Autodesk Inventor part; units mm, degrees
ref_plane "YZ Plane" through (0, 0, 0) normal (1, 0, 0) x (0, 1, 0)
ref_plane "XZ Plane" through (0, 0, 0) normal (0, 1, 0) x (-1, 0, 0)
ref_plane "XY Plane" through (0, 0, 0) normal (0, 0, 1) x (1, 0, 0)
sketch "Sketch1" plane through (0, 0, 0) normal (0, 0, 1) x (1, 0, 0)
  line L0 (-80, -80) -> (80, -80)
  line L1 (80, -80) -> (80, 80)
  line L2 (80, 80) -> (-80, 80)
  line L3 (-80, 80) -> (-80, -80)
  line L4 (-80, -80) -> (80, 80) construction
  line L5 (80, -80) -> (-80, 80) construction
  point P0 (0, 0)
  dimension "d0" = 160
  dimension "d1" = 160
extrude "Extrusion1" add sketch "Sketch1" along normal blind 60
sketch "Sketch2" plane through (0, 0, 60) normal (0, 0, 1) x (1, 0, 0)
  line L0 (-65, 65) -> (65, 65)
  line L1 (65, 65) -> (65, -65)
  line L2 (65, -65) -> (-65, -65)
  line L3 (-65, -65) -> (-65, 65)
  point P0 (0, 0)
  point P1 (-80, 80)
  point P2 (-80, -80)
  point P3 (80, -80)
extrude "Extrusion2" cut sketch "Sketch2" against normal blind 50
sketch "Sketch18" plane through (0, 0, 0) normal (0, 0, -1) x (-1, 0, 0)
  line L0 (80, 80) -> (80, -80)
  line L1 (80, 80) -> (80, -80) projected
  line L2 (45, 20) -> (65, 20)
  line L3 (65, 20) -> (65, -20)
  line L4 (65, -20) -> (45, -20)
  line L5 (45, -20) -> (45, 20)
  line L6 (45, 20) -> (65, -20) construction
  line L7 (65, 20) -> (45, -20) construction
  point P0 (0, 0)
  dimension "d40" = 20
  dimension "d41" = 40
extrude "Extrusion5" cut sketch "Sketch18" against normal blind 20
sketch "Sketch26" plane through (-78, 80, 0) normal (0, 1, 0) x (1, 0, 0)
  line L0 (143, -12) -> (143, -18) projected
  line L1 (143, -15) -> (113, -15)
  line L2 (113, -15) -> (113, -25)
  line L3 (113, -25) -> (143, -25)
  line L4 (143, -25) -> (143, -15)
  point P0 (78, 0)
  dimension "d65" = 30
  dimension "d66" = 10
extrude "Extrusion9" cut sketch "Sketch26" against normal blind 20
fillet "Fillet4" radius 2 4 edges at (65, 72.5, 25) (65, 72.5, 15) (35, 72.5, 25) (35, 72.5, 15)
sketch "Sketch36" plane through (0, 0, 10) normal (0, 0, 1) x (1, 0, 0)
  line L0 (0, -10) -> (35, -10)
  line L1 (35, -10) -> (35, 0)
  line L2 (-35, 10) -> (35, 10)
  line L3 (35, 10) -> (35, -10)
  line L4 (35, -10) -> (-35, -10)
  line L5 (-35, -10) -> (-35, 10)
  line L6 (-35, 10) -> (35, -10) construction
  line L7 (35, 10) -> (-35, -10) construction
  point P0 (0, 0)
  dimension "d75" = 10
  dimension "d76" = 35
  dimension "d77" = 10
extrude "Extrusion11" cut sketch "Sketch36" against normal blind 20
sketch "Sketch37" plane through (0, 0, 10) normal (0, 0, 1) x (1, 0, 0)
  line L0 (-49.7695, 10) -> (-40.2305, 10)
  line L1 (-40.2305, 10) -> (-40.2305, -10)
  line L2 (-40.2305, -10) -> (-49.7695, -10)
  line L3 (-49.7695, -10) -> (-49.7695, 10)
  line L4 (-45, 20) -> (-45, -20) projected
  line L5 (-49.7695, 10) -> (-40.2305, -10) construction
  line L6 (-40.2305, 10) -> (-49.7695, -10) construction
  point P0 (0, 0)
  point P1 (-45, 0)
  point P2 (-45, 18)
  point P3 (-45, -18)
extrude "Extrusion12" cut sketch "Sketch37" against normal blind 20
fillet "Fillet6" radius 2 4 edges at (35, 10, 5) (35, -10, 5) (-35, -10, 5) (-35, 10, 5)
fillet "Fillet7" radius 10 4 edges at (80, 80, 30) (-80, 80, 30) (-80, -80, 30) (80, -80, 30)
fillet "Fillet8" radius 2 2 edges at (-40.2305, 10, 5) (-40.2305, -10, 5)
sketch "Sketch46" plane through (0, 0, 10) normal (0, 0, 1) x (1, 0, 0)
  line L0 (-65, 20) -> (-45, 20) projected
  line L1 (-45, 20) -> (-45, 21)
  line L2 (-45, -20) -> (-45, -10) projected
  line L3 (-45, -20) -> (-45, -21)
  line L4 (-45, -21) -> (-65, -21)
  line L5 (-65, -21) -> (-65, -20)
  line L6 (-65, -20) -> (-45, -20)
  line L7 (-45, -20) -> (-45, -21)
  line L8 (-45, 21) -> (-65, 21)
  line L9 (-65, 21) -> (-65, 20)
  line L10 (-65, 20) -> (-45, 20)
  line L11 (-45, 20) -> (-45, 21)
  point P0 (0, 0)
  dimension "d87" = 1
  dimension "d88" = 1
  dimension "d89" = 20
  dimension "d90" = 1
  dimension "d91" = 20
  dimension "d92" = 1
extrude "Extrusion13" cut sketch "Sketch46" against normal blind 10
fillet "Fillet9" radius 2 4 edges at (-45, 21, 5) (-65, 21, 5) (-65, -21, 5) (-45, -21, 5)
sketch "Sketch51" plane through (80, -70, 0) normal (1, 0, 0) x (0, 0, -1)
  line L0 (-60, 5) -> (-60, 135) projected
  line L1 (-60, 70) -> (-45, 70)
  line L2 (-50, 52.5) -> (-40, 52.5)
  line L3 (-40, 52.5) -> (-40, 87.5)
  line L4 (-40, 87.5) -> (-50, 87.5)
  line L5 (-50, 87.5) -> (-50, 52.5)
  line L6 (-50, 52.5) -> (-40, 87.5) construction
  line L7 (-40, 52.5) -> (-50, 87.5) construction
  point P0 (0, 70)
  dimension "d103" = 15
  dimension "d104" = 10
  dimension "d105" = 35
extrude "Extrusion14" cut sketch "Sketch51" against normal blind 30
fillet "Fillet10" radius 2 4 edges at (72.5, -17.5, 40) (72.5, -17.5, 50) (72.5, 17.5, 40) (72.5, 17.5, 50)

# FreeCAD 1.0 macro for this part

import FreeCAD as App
import Part
import Sketcher

V = App.Vector


def edges_at(feature, points):
    """Names of the edges that pass closest to the given points."""
    edges = feature.Shape.Edges
    near = lambda p: min(range(len(edges)), key=lambda i: edges[i].distToShape(Part.Vertex(*p))[0])
    return sorted({f"Edge{near(p) + 1}" for p in points})

doc = App.newDocument("Part")
body = doc.addObject("PartDesign::Body", "Body")

sketch1 = doc.addObject("Sketcher::SketchObject", "Sketch")
body.addObject(sketch1)
sketch1.AttachmentSupport = (doc.XY_Plane, [""])
sketch1.MapMode = "FlatFace"
sketch1.addGeometry(Part.LineSegment(V(-80, 80, 0), V(-80, -80, 0)), False)
sketch1.addGeometry(Part.LineSegment(V(-80, -80, 0), V(80, -80, 0)), False)
sketch1.addGeometry(Part.LineSegment(V(80, -80, 0), V(80, 80, 0)), False)
sketch1.addGeometry(Part.LineSegment(V(80, 80, 0), V(-80, 80, 0)), False)
sketch1.addConstraint(Sketcher.Constraint("Coincident", 0, 2, 1, 1))
sketch1.addConstraint(Sketcher.Constraint("Coincident", 1, 2, 2, 1))
sketch1.addConstraint(Sketcher.Constraint("Coincident", 2, 2, 3, 1))
sketch1.addConstraint(Sketcher.Constraint("Coincident", 3, 2, 0, 1))
sketch1.addConstraint(Sketcher.Constraint("Vertical", 0))
sketch1.addConstraint(Sketcher.Constraint("Horizontal", 1))
sketch1.addConstraint(Sketcher.Constraint("Vertical", 2))
sketch1.addConstraint(Sketcher.Constraint("Horizontal", 3))
sketch1.addConstraint(Sketcher.Constraint("Symmetric", 0, 2, 2, 2, -1, 1))
sketch1.addConstraint(Sketcher.Constraint("Equal", 3, 0))
sketch1.addConstraint(Sketcher.Constraint("DistanceX", 1, 1, 1, 2, 160.0))
pad1 = doc.addObject("PartDesign::Pad", "Pad")
body.addObject(pad1)
pad1.Profile = sketch1
pad1.Length = 60

sketch2 = doc.addObject("Sketcher::SketchObject", "Sketch001")
body.addObject(sketch2)
sketch2.AttachmentSupport = (doc.XY_Plane, [""])
sketch2.MapMode = "FlatFace"
sketch2.AttachmentOffset = App.Placement(V(0, 0, 60), App.Rotation())
sketch2.addGeometry(Part.LineSegment(V(65, 65, 0), V(-65, 65, 0)), False)
sketch2.addGeometry(Part.LineSegment(V(-65, 65, 0), V(-65, -65, 0)), False)
sketch2.addGeometry(Part.LineSegment(V(-65, -65, 0), V(65, -65, 0)), False)
sketch2.addGeometry(Part.LineSegment(V(65, -65, 0), V(65, 65, 0)), False)
sketch2.addConstraint(Sketcher.Constraint("Coincident", 0, 2, 1, 1))
sketch2.addConstraint(Sketcher.Constraint("Coincident", 1, 2, 2, 1))
sketch2.addConstraint(Sketcher.Constraint("Coincident", 2, 2, 3, 1))
sketch2.addConstraint(Sketcher.Constraint("Coincident", 3, 2, 0, 1))
sketch2.addConstraint(Sketcher.Constraint("Horizontal", 0))
sketch2.addConstraint(Sketcher.Constraint("Vertical", 1))
sketch2.addConstraint(Sketcher.Constraint("Horizontal", 2))
sketch2.addConstraint(Sketcher.Constraint("Vertical", 3))
sketch2.addConstraint(Sketcher.Constraint("Symmetric", 0, 2, 2, 2, -1, 1))
sketch2.addConstraint(Sketcher.Constraint("Equal", 2, 1))
sketch2.addConstraint(Sketcher.Constraint("DistanceX", 0, 2, 0, 1, 130.0))
pocket1 = doc.addObject("PartDesign::Pocket", "Pocket")
body.addObject(pocket1)
pocket1.Profile = sketch2
pocket1.Length = 50

sketch3 = doc.addObject("Sketcher::SketchObject", "Sketch002")
body.addObject(sketch3)
sketch3.AttachmentSupport = (doc.XY_Plane, [""])
sketch3.MapMode = "FlatFace"
sketch3.addGeometry(Part.LineSegment(V(-65, 20, 0), V(-45, 20, 0)), False)
sketch3.addGeometry(Part.LineSegment(V(-45, 20, 0), V(-45, -20, 0)), False)
sketch3.addGeometry(Part.LineSegment(V(-45, -20, 0), V(-65, -20, 0)), False)
sketch3.addGeometry(Part.LineSegment(V(-65, -20, 0), V(-65, 20, 0)), False)
sketch3.addConstraint(Sketcher.Constraint("Coincident", 0, 2, 1, 1))
sketch3.addConstraint(Sketcher.Constraint("Coincident", 1, 2, 2, 1))
sketch3.addConstraint(Sketcher.Constraint("Coincident", 2, 2, 3, 1))
sketch3.addConstraint(Sketcher.Constraint("Coincident", 3, 2, 0, 1))
sketch3.addConstraint(Sketcher.Constraint("Horizontal", 0))
sketch3.addConstraint(Sketcher.Constraint("Vertical", 1))
sketch3.addConstraint(Sketcher.Constraint("Horizontal", 2))
sketch3.addConstraint(Sketcher.Constraint("Vertical", 3))
sketch3.addConstraint(Sketcher.Constraint("DistanceX", 0, 1, 0, 2, 20.0))
sketch3.addConstraint(Sketcher.Constraint("DistanceY", 1, 2, 1, 1, 40.0))
sketch3.addConstraint(Sketcher.Constraint("DistanceY", -1, 1, 0, 2, 20.0))
sketch3.addConstraint(Sketcher.Constraint("DistanceX", 0, 2, -1, 1, 45.0))
pocket2 = doc.addObject("PartDesign::Pocket", "Pocket001")
body.addObject(pocket2)
pocket2.Profile = sketch3
pocket2.Length = 20
pocket2.Reversed = True

sketch4 = doc.addObject("Sketcher::SketchObject", "Sketch003")
body.addObject(sketch4)
sketch4.AttachmentSupport = (doc.XZ_Plane, [""])
sketch4.MapMode = "FlatFace"
sketch4.AttachmentOffset = App.Placement(V(0, 0, -80), App.Rotation())
sketch4.addGeometry(Part.LineSegment(V(65, 25, 0), V(65, 15, 0)), False)
sketch4.addGeometry(Part.LineSegment(V(65, 15, 0), V(35, 15, 0)), False)
sketch4.addGeometry(Part.LineSegment(V(35, 15, 0), V(35, 25, 0)), False)
sketch4.addGeometry(Part.LineSegment(V(35, 25, 0), V(65, 25, 0)), False)
sketch4.addConstraint(Sketcher.Constraint("Coincident", 0, 2, 1, 1))
sketch4.addConstraint(Sketcher.Constraint("Coincident", 1, 2, 2, 1))
sketch4.addConstraint(Sketcher.Constraint("Coincident", 2, 2, 3, 1))
sketch4.addConstraint(Sketcher.Constraint("Coincident", 3, 2, 0, 1))
sketch4.addConstraint(Sketcher.Constraint("Vertical", 0))
sketch4.addConstraint(Sketcher.Constraint("Horizontal", 1))
sketch4.addConstraint(Sketcher.Constraint("Vertical", 2))
sketch4.addConstraint(Sketcher.Constraint("Horizontal", 3))
sketch4.addConstraint(Sketcher.Constraint("DistanceX", 1, 2, 1, 1, 30.0))
sketch4.addConstraint(Sketcher.Constraint("DistanceY", 0, 2, 0, 1, 10.0))
sketch4.addConstraint(Sketcher.Constraint("DistanceX", -1, 1, 0, 2, 65.0))
sketch4.addConstraint(Sketcher.Constraint("DistanceY", -1, 1, 0, 2, 15.0))
pocket3 = doc.addObject("PartDesign::Pocket", "Pocket002")
body.addObject(pocket3)
pocket3.Profile = sketch4
pocket3.Length = 20
pocket3.Reversed = True
doc.recompute()

fillet = doc.addObject("PartDesign::Fillet", "Fillet")
body.addObject(fillet)
fillet.Base = (pocket3, edges_at(pocket3, [
    (65, 72.5, 25),
    (65, 72.5, 15),
    (35, 72.5, 25),
    (35, 72.5, 15),
]))
fillet.Radius = 2

sketch5 = doc.addObject("Sketcher::SketchObject", "Sketch004")
body.addObject(sketch5)
sketch5.AttachmentSupport = (doc.XY_Plane, [""])
sketch5.MapMode = "FlatFace"
sketch5.AttachmentOffset = App.Placement(V(0, 0, 10), App.Rotation())
sketch5.addGeometry(Part.LineSegment(V(-35, -10, 0), V(35, -10, 0)), False)
sketch5.addGeometry(Part.LineSegment(V(35, -10, 0), V(35, 10, 0)), False)
sketch5.addGeometry(Part.LineSegment(V(35, 10, 0), V(-35, 10, 0)), False)
sketch5.addGeometry(Part.LineSegment(V(-35, 10, 0), V(-35, -10, 0)), False)
sketch5.addConstraint(Sketcher.Constraint("Coincident", 0, 2, 1, 1))
sketch5.addConstraint(Sketcher.Constraint("Coincident", 1, 2, 2, 1))
sketch5.addConstraint(Sketcher.Constraint("Coincident", 2, 2, 3, 1))
sketch5.addConstraint(Sketcher.Constraint("Coincident", 3, 2, 0, 1))
sketch5.addConstraint(Sketcher.Constraint("Horizontal", 0))
sketch5.addConstraint(Sketcher.Constraint("Vertical", 1))
sketch5.addConstraint(Sketcher.Constraint("Horizontal", 2))
sketch5.addConstraint(Sketcher.Constraint("Vertical", 3))
sketch5.addConstraint(Sketcher.Constraint("Symmetric", 0, 2, 2, 2, -1, 1))
sketch5.addConstraint(Sketcher.Constraint("DistanceX", -1, 1, 0, 2, 35.0))
sketch5.addConstraint(Sketcher.Constraint("DistanceY", 0, 2, -1, 1, 10.0))
pocket4 = doc.addObject("PartDesign::Pocket", "Pocket003")
body.addObject(pocket4)
pocket4.Profile = sketch5
pocket4.Length = 20

sketch6 = doc.addObject("Sketcher::SketchObject", "Sketch005")
body.addObject(sketch6)
sketch6.AttachmentSupport = (doc.XY_Plane, [""])
sketch6.MapMode = "FlatFace"
sketch6.AttachmentOffset = App.Placement(V(0, 0, 10), App.Rotation())
sketch6.addGeometry(Part.LineSegment(V(-49.7695, 10, 0), V(-49.7695, -10, 0)), False)
sketch6.addGeometry(Part.LineSegment(V(-49.7695, -10, 0), V(-40.2305, -10, 0)), False)
sketch6.addGeometry(Part.LineSegment(V(-40.2305, -10, 0), V(-40.2305, 10, 0)), False)
sketch6.addGeometry(Part.LineSegment(V(-40.2305, 10, 0), V(-49.7695, 10, 0)), False)
sketch6.addConstraint(Sketcher.Constraint("Coincident", 0, 2, 1, 1))
sketch6.addConstraint(Sketcher.Constraint("Coincident", 1, 2, 2, 1))
sketch6.addConstraint(Sketcher.Constraint("Coincident", 2, 2, 3, 1))
sketch6.addConstraint(Sketcher.Constraint("Coincident", 3, 2, 0, 1))
sketch6.addConstraint(Sketcher.Constraint("Vertical", 0))
sketch6.addConstraint(Sketcher.Constraint("Horizontal", 1))
sketch6.addConstraint(Sketcher.Constraint("Vertical", 2))
sketch6.addConstraint(Sketcher.Constraint("Horizontal", 3))
sketch6.addConstraint(Sketcher.Constraint("DistanceY", 0, 2, 0, 1, 20.0))
sketch6.addConstraint(Sketcher.Constraint("DistanceY", 0, 2, -1, 1, 10.0))
sketch6.addConstraint(Sketcher.Constraint("DistanceX", 1, 1, 1, 2, 9.539))
sketch6.addConstraint(Sketcher.Constraint("DistanceX", 0, 2, -1, 1, 49.7695))
pocket5 = doc.addObject("PartDesign::Pocket", "Pocket004")
body.addObject(pocket5)
pocket5.Profile = sketch6
pocket5.Length = 20
doc.recompute()

fillet2 = doc.addObject("PartDesign::Fillet", "Fillet001")
body.addObject(fillet2)
fillet2.Base = (pocket5, edges_at(pocket5, [
    (35, 10, 5),
    (35, -10, 5),
    (-35, -10, 5),
    (-35, 10, 5),
]))
fillet2.Radius = 2
doc.recompute()

fillet3 = doc.addObject("PartDesign::Fillet", "Fillet002")
body.addObject(fillet3)
fillet3.Base = (fillet2, edges_at(fillet2, [
    (80, 80, 30),
    (-80, 80, 30),
    (-80, -80, 30),
    (80, -80, 30),
]))
fillet3.Radius = 10
doc.recompute()

fillet4 = doc.addObject("PartDesign::Fillet", "Fillet003")
body.addObject(fillet4)
fillet4.Base = (fillet3, edges_at(fillet3, [(-40.23, 10, 5), (-40.23, -10, 5)]))
fillet4.Radius = 2

sketch7 = doc.addObject("Sketcher::SketchObject", "Sketch006")
body.addObject(sketch7)
sketch7.AttachmentSupport = (doc.XY_Plane, [""])
sketch7.MapMode = "FlatFace"
sketch7.AttachmentOffset = App.Placement(V(0, 0, 10), App.Rotation())
sketch7.addGeometry(Part.LineSegment(V(-65, 21, 0), V(-65, 20, 0)), False)
sketch7.addGeometry(Part.LineSegment(V(-65, 20, 0), V(-45, 20, 0)), False)
sketch7.addGeometry(Part.LineSegment(V(-45, 20, 0), V(-45, 21, 0)), False)
sketch7.addGeometry(Part.LineSegment(V(-45, 21, 0), V(-65, 21, 0)), False)
sketch7.addGeometry(Part.LineSegment(V(-45, -21, 0), V(-45, -20, 0)), False)
sketch7.addGeometry(Part.LineSegment(V(-45, -20, 0), V(-65, -20, 0)), False)
sketch7.addGeometry(Part.LineSegment(V(-65, -20, 0), V(-65, -21, 0)), False)
sketch7.addGeometry(Part.LineSegment(V(-65, -21, 0), V(-45, -21, 0)), False)
sketch7.addConstraint(Sketcher.Constraint("Coincident", 0, 2, 1, 1))
sketch7.addConstraint(Sketcher.Constraint("Coincident", 1, 2, 2, 1))
sketch7.addConstraint(Sketcher.Constraint("Coincident", 2, 2, 3, 1))
sketch7.addConstraint(Sketcher.Constraint("Coincident", 3, 2, 0, 1))
sketch7.addConstraint(Sketcher.Constraint("Coincident", 4, 2, 5, 1))
sketch7.addConstraint(Sketcher.Constraint("Coincident", 5, 2, 6, 1))
sketch7.addConstraint(Sketcher.Constraint("Coincident", 6, 2, 7, 1))
sketch7.addConstraint(Sketcher.Constraint("Coincident", 7, 2, 4, 1))
sketch7.addConstraint(Sketcher.Constraint("Vertical", 0))
sketch7.addConstraint(Sketcher.Constraint("Horizontal", 1))
sketch7.addConstraint(Sketcher.Constraint("Vertical", 2))
sketch7.addConstraint(Sketcher.Constraint("Horizontal", 3))
sketch7.addConstraint(Sketcher.Constraint("Vertical", 4))
sketch7.addConstraint(Sketcher.Constraint("Horizontal", 5))
sketch7.addConstraint(Sketcher.Constraint("Vertical", 6))
sketch7.addConstraint(Sketcher.Constraint("Horizontal", 7))
sketch7.addConstraint(Sketcher.Constraint("Symmetric", 1, 2, 4, 2, -1))
sketch7.addConstraint(Sketcher.Constraint("Symmetric", 3, 2, 6, 2, -1))
sketch7.addConstraint(Sketcher.Constraint("DistanceX", 1, 1, 1, 2, 20.0))
sketch7.addConstraint(Sketcher.Constraint("DistanceY", 0, 2, 0, 1, 1.0))
sketch7.addConstraint(Sketcher.Constraint("DistanceY", -1, 1, 0, 2, 20.0))
sketch7.addConstraint(Sketcher.Constraint("DistanceX", 0, 2, -1, 1, 65.0))
pocket6 = doc.addObject("PartDesign::Pocket", "Pocket005")
body.addObject(pocket6)
pocket6.Profile = sketch7
pocket6.Length = 10
doc.recompute()

fillet5 = doc.addObject("PartDesign::Fillet", "Fillet004")
body.addObject(fillet5)
fillet5.Base = (pocket6, edges_at(pocket6, [
    (-45, 21, 5),
    (-65, 21, 5),
    (-65, -21, 5),
    (-45, -21, 5),
]))
fillet5.Radius = 2

sketch8 = doc.addObject("Sketcher::SketchObject", "Sketch007")
body.addObject(sketch8)
sketch8.AttachmentSupport = (doc.YZ_Plane, [""])
sketch8.MapMode = "FlatFace"
sketch8.AttachmentOffset = App.Placement(V(0, 0, 80), App.Rotation())
sketch8.addGeometry(Part.LineSegment(V(17.5, 50, 0), V(-17.5, 50, 0)), False)
sketch8.addGeometry(Part.LineSegment(V(-17.5, 50, 0), V(-17.5, 40, 0)), False)
sketch8.addGeometry(Part.LineSegment(V(-17.5, 40, 0), V(17.5, 40, 0)), False)
sketch8.addGeometry(Part.LineSegment(V(17.5, 40, 0), V(17.5, 50, 0)), False)
sketch8.addConstraint(Sketcher.Constraint("Coincident", 0, 2, 1, 1))
sketch8.addConstraint(Sketcher.Constraint("Coincident", 1, 2, 2, 1))
sketch8.addConstraint(Sketcher.Constraint("Coincident", 2, 2, 3, 1))
sketch8.addConstraint(Sketcher.Constraint("Coincident", 3, 2, 0, 1))
sketch8.addConstraint(Sketcher.Constraint("Horizontal", 0))
sketch8.addConstraint(Sketcher.Constraint("Vertical", 1))
sketch8.addConstraint(Sketcher.Constraint("Horizontal", 2))
sketch8.addConstraint(Sketcher.Constraint("Vertical", 3))
sketch8.addConstraint(Sketcher.Constraint("DistanceX", 0, 2, 0, 1, 35.0))
sketch8.addConstraint(Sketcher.Constraint("DistanceY", 1, 2, 1, 1, 10.0))
sketch8.addConstraint(Sketcher.Constraint("DistanceY", -1, 1, 0, 2, 50.0))
sketch8.addConstraint(Sketcher.Constraint("DistanceX", 0, 2, -1, 1, 17.5))
pocket7 = doc.addObject("PartDesign::Pocket", "Pocket006")
body.addObject(pocket7)
pocket7.Profile = sketch8
pocket7.Length = 30
doc.recompute()

fillet6 = doc.addObject("PartDesign::Fillet", "Fillet005")
body.addObject(fillet6)
fillet6.Base = (pocket7, edges_at(pocket7, [
    (72.5, -17.5, 40),
    (72.5, -17.5, 50),
    (72.5, 17.5, 40),
    (72.5, 17.5, 50),
]))
fillet6.Radius = 2

doc.recompute()
